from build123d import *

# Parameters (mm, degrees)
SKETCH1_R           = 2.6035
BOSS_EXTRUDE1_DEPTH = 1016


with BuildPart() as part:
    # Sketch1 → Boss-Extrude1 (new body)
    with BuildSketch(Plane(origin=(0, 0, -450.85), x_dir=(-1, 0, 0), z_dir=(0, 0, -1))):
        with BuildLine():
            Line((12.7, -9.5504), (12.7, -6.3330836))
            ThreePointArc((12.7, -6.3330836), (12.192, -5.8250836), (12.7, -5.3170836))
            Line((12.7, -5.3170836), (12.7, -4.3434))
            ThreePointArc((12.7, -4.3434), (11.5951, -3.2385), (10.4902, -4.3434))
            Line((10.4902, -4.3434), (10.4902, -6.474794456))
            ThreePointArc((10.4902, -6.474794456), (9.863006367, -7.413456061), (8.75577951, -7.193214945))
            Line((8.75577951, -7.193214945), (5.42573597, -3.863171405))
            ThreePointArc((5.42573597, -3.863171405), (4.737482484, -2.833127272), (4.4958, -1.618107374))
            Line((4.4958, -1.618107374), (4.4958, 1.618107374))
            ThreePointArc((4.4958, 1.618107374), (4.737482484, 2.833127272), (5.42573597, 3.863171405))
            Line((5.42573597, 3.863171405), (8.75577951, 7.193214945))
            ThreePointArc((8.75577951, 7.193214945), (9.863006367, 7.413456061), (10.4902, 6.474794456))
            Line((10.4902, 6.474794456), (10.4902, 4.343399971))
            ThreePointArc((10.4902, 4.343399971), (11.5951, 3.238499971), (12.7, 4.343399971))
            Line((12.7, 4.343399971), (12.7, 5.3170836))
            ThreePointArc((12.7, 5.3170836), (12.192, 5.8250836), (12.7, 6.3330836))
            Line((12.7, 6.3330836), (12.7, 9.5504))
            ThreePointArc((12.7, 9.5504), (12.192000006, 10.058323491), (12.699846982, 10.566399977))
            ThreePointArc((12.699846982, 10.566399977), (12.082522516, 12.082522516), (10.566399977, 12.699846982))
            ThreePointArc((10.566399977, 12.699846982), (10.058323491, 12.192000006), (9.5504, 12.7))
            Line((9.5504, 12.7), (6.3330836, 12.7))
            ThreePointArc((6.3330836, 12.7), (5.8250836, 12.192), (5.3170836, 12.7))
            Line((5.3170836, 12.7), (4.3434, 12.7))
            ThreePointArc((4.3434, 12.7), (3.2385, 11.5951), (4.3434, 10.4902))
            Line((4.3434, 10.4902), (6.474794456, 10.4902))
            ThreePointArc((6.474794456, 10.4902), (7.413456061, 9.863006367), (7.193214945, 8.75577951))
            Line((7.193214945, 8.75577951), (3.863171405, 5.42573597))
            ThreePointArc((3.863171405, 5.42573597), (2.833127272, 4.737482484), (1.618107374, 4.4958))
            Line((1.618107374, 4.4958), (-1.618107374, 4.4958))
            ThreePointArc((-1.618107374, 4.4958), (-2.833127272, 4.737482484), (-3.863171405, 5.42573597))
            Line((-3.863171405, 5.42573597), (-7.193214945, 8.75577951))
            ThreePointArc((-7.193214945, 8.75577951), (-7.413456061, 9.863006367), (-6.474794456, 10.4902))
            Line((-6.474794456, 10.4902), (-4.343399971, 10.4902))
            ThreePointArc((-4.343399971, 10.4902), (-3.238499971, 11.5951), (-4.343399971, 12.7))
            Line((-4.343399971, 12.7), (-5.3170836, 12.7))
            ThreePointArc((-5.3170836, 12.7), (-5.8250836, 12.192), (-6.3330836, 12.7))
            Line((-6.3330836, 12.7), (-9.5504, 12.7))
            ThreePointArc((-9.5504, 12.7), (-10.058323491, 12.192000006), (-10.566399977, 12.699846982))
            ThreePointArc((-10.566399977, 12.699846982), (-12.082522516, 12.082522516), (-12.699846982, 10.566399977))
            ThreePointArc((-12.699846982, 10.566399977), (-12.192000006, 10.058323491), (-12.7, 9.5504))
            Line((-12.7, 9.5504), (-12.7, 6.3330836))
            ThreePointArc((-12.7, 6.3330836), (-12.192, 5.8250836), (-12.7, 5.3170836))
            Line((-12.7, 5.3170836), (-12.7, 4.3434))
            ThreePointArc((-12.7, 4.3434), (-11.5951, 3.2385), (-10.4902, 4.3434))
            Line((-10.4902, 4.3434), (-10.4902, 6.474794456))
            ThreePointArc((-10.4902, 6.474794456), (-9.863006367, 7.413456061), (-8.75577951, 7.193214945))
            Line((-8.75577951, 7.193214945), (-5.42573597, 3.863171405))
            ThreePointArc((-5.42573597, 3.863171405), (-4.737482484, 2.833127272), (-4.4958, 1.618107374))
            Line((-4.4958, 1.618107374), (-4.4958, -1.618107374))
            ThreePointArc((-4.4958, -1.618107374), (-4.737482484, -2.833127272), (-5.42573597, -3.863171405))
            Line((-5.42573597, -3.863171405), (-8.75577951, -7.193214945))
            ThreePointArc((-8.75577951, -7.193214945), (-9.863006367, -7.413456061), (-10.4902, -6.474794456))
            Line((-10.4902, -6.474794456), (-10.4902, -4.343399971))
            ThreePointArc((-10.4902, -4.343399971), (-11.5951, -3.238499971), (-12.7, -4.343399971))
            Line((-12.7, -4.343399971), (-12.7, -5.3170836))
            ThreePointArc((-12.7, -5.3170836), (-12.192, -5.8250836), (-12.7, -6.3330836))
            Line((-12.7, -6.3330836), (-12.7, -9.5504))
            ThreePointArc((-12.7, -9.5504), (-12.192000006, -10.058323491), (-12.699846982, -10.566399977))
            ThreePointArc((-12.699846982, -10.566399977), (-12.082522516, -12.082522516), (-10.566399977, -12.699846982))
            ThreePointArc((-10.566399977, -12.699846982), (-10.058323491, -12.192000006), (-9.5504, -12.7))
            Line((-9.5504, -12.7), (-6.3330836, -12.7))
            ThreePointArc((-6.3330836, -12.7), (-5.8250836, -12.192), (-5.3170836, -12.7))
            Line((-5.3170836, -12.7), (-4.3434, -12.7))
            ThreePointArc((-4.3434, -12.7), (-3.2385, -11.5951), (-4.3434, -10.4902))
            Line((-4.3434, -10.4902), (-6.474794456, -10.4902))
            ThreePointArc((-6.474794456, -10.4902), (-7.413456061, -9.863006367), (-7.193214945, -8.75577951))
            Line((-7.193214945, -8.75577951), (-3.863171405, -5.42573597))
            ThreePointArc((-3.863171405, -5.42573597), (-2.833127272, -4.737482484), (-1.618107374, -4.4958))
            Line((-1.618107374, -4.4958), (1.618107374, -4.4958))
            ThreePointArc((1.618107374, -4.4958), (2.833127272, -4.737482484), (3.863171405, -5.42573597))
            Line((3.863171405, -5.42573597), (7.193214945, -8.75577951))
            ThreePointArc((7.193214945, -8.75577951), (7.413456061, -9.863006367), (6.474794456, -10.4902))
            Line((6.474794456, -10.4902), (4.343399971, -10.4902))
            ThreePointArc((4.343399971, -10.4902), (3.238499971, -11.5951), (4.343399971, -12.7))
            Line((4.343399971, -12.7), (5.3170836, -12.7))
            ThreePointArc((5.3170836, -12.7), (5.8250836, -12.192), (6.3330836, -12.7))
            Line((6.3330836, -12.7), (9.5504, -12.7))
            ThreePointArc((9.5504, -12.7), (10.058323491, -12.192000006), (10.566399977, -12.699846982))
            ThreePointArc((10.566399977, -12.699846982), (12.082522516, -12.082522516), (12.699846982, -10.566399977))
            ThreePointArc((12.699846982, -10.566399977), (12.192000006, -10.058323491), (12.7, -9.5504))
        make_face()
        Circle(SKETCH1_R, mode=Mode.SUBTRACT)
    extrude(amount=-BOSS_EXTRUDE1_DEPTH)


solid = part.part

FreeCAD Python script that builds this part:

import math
import FreeCAD as App
import Part
import Sketcher

V = App.Vector
Q = App.Units.Quantity

doc = App.newDocument("Part")
body = doc.addObject("PartDesign::Body", "Body")

sketch1 = doc.addObject("Sketcher::SketchObject", "Sketch")
body.addObject(sketch1)
sketch1.AttachmentSupport = (doc.XY_Plane, [""])
sketch1.MapMode = "FlatFace"
sketch1.AttachmentOffset = App.Placement(V(0, 0, -17.75 * 25.4), App.Rotation())
sketch1.addGeometry([
    Part.LineSegment(V(-12.7, -9.5504, 0), V(-12.7, -6.333084, 0)),
    Part.ArcOfCircle(Part.Circle(V(-12.7, -5.825084, 0), V(0, 0, 1), 0.508), math.radians(-90), math.radians(90)),
    Part.LineSegment(V(-12.7, -5.317084, 0), V(-12.7, -4.3434, 0)),
    Part.ArcOfCircle(Part.Circle(V(-11.5951, -4.3434, 0), V(0, 0, 1), 1.1049), math.radians(0), math.radians(180)),
    Part.LineSegment(V(-10.4902, -4.3434, 0), V(-10.4902, -6.474794, 0)),
    Part.ArcOfCircle(Part.Circle(V(-9.4742, -6.474794, 0), V(0, 0, 1), 1.016), math.radians(180), math.radians(315)),
    Part.LineSegment(V(-8.75578, -7.193215, 0), V(-5.425736, -3.863171, 0)),
    Part.ArcOfCircle(Part.Circle(V(-7.6708, -1.618107, 0), V(0, 0, 1), 3.175), math.radians(-45), math.radians(0)),
    Part.LineSegment(V(-4.4958, -1.618107, 0), V(-4.4958, 1.618107, 0)),
    Part.ArcOfCircle(Part.Circle(V(-7.6708, 1.618107, 0), V(0, 0, 1), 3.175), math.radians(0), math.radians(45)),
    Part.LineSegment(V(-5.425736, 3.863171, 0), V(-8.75578, 7.193215, 0)),
    Part.ArcOfCircle(Part.Circle(V(-9.4742, 6.474794, 0), V(0, 0, 1), 1.016), math.radians(45), math.radians(180)),
    Part.LineSegment(V(-10.4902, 6.474794, 0), V(-10.4902, 4.3434, 0)),
    Part.ArcOfCircle(Part.Circle(V(-11.5951, 4.3434, 0), V(0, 0, 1), 1.1049), math.radians(180), math.radians(360)),
    Part.LineSegment(V(-12.7, 4.3434, 0), V(-12.7, 5.317084, 0)),
    Part.ArcOfCircle(Part.Circle(V(-12.7, 5.825084, 0), V(0, 0, 1), 0.508), math.radians(-90), math.radians(90)),
    Part.LineSegment(V(-12.7, 6.333084, 0), V(-12.7, 9.5504, 0)),
    Part.ArcOfCircle(Part.Circle(V(-12.7, 10.0584, 0), V(0, 0, 1), 0.508), math.radians(-90), math.radians(89.982742)),
    Part.ArcOfCircle(Part.Circle(V(-10.5918, 10.5918, 0), V(0, 0, 1), 2.1082), math.radians(89.309672), math.radians(180.690328)),
    Part.ArcOfCircle(Part.Circle(V(-10.0584, 12.7, 0), V(0, 0, 1), 0.508), math.radians(-179.982742), math.radians(0)),
    Part.LineSegment(V(-9.5504, 12.7, 0), V(-6.333084, 12.7, 0)),
    Part.ArcOfCircle(Part.Circle(V(-5.825084, 12.7, 0), V(0, 0, 1), 0.508), math.radians(180), math.radians(360)),
    Part.LineSegment(V(-5.317084, 12.7, 0), V(-4.3434, 12.7, 0)),
    Part.ArcOfCircle(Part.Circle(V(-4.3434, 11.5951, 0), V(0, 0, 1), 1.1049), math.radians(-90), math.radians(90)),
    Part.LineSegment(V(-4.3434, 10.4902, 0), V(-6.474794, 10.4902, 0)),
    Part.ArcOfCircle(Part.Circle(V(-6.474794, 9.4742, 0), V(0, 0, 1), 1.016), math.radians(90), math.radians(225)),
    Part.LineSegment(V(-7.193215, 8.75578, 0), V(-3.863171, 5.425736, 0)),
    Part.ArcOfCircle(Part.Circle(V(-1.618107, 7.6708, 0), V(0, 0, 1), 3.175), math.radians(-135), math.radians(-90)),
    Part.LineSegment(V(-1.618107, 4.4958, 0), V(1.618107, 4.4958, 0)),
    Part.ArcOfCircle(Part.Circle(V(1.618107, 7.6708, 0), V(0, 0, 1), 3.175), math.radians(-90), math.radians(-45)),
    Part.LineSegment(V(3.863171, 5.425736, 0), V(7.193215, 8.75578, 0)),
    Part.ArcOfCircle(Part.Circle(V(6.474794, 9.4742, 0), V(0, 0, 1), 1.016), math.radians(-45), math.radians(90)),
    Part.LineSegment(V(6.474794, 10.4902, 0), V(4.3434, 10.4902, 0)),
    Part.ArcOfCircle(Part.Circle(V(4.3434, 11.5951, 0), V(0, 0, 1), 1.1049), math.radians(90), math.radians(270)),
    Part.LineSegment(V(4.3434, 12.7, 0), V(5.317084, 12.7, 0)),
    Part.ArcOfCircle(Part.Circle(V(5.825084, 12.7, 0), V(0, 0, 1), 0.508), math.radians(180), math.radians(360)),
    Part.LineSegment(V(6.333084, 12.7, 0), V(9.5504, 12.7, 0)),
    Part.ArcOfCircle(Part.Circle(V(10.0584, 12.7, 0), V(0, 0, 1), 0.508), math.radians(180), math.radians(359.982742)),
    Part.ArcOfCircle(Part.Circle(V(10.5918, 10.5918, 0), V(0, 0, 1), 2.1082), math.radians(-0.690328), math.radians(90.690328)),
    Part.ArcOfCircle(Part.Circle(V(12.7, 10.0584, 0), V(0, 0, 1), 0.508), math.radians(90.017258), math.radians(270)),
    Part.LineSegment(V(12.7, 9.5504, 0), V(12.7, 6.333084, 0)),
    Part.ArcOfCircle(Part.Circle(V(12.7, 5.825084, 0), V(0, 0, 1), 0.508), math.radians(90), math.radians(270)),
    Part.LineSegment(V(12.7, 5.317084, 0), V(12.7, 4.3434, 0)),
    Part.ArcOfCircle(Part.Circle(V(11.5951, 4.3434, 0), V(0, 0, 1), 1.1049), math.radians(180), math.radians(360)),
    Part.LineSegment(V(10.4902, 4.3434, 0), V(10.4902, 6.474794, 0)),
    Part.ArcOfCircle(Part.Circle(V(9.4742, 6.474794, 0), V(0, 0, 1), 1.016), math.radians(0), math.radians(135)),
    Part.LineSegment(V(8.75578, 7.193215, 0), V(5.425736, 3.863171, 0)),
    Part.ArcOfCircle(Part.Circle(V(7.6708, 1.618107, 0), V(0, 0, 1), 3.175), math.radians(135), math.radians(180)),
    Part.LineSegment(V(4.4958, 1.618107, 0), V(4.4958, -1.618107, 0)),
    Part.ArcOfCircle(Part.Circle(V(7.6708, -1.618107, 0), V(0, 0, 1), 3.175), math.radians(180), math.radians(225)),
    Part.LineSegment(V(5.425736, -3.863171, 0), V(8.75578, -7.193215, 0)),
    Part.ArcOfCircle(Part.Circle(V(9.4742, -6.474794, 0), V(0, 0, 1), 1.016), math.radians(-135), math.radians(0)),
    Part.LineSegment(V(10.4902, -6.474794, 0), V(10.4902, -4.3434, 0)),
    Part.ArcOfCircle(Part.Circle(V(11.5951, -4.3434, 0), V(0, 0, 1), 1.1049), math.radians(0), math.radians(180)),
    Part.LineSegment(V(12.7, -4.3434, 0), V(12.7, -5.317084, 0)),
    Part.ArcOfCircle(Part.Circle(V(12.7, -5.825084, 0), V(0, 0, 1), 0.508), math.radians(90), math.radians(270)),
    Part.LineSegment(V(12.7, -6.333084, 0), V(12.7, -9.5504, 0)),
    Part.ArcOfCircle(Part.Circle(V(12.7, -10.0584, 0), V(0, 0, 1), 0.508), math.radians(90), math.radians(269.982742)),
    Part.ArcOfCircle(Part.Circle(V(10.5918, -10.5918, 0), V(0, 0, 1), 2.1082), math.radians(-90.690328), math.radians(0.690328)),
    Part.ArcOfCircle(Part.Circle(V(10.0584, -12.7, 0), V(0, 0, 1), 0.508), math.radians(0.017258), math.radians(180)),
    Part.LineSegment(V(9.5504, -12.7, 0), V(6.333084, -12.7, 0)),
    Part.ArcOfCircle(Part.Circle(V(5.825084, -12.7, 0), V(0, 0, 1), 0.508), math.radians(0), math.radians(180)),
    Part.LineSegment(V(5.317084, -12.7, 0), V(4.3434, -12.7, 0)),
    Part.ArcOfCircle(Part.Circle(V(4.3434, -11.5951, 0), V(0, 0, 1), 1.1049), math.radians(90), math.radians(270)),
    Part.LineSegment(V(4.3434, -10.4902, 0), V(6.474794, -10.4902, 0)),
    Part.ArcOfCircle(Part.Circle(V(6.474794, -9.4742, 0), V(0, 0, 1), 1.016), math.radians(-90), math.radians(45)),
    Part.LineSegment(V(7.193215, -8.75578, 0), V(3.863171, -5.425736, 0)),
    Part.ArcOfCircle(Part.Circle(V(1.618107, -7.6708, 0), V(0, 0, 1), 3.175), math.radians(45), math.radians(90)),
    Part.LineSegment(V(1.618107, -4.4958, 0), V(-1.618107, -4.4958, 0)),
    Part.ArcOfCircle(Part.Circle(V(-1.618107, -7.6708, 0), V(0, 0, 1), 3.175), math.radians(90), math.radians(135)),
    Part.LineSegment(V(-3.863171, -5.425736, 0), V(-7.193215, -8.75578, 0)),
    Part.ArcOfCircle(Part.Circle(V(-6.474794, -9.4742, 0), V(0, 0, 1), 1.016), math.radians(135), math.radians(270)),
    Part.LineSegment(V(-6.474794, -10.4902, 0), V(-4.3434, -10.4902, 0)),
    Part.ArcOfCircle(Part.Circle(V(-4.3434, -11.5951, 0), V(0, 0, 1), 1.1049), math.radians(-90), math.radians(90)),
    Part.LineSegment(V(-4.3434, -12.7, 0), V(-5.317084, -12.7, 0)),
    Part.ArcOfCircle(Part.Circle(V(-5.825084, -12.7, 0), V(0, 0, 1), 0.508), math.radians(0), math.radians(180)),
    Part.LineSegment(V(-6.333084, -12.7, 0), V(-9.5504, -12.7, 0)),
    Part.ArcOfCircle(Part.Circle(V(-10.0584, -12.7, 0), V(0, 0, 1), 0.508), math.radians(0), math.radians(179.982742)),
    Part.ArcOfCircle(Part.Circle(V(-10.5918, -10.5918, 0), V(0, 0, 1), 2.1082), math.radians(179.309672), math.radians(270.690328)),
    Part.ArcOfCircle(Part.Circle(V(-12.7, -10.0584, 0), V(0, 0, 1), 0.508), math.radians(-89.982742), math.radians(90)),
    Part.Circle(V(0, 0, 0), V(0, 0, 1), 2.6035),
], False)
sketch1.addConstraint([
    Sketcher.Constraint("Coincident", 0, 2, 1, 1),
    Sketcher.Constraint("Coincident", 1, 2, 2, 1),
    Sketcher.Constraint("Tangent", 2, 2, 3, 2),
    Sketcher.Constraint("Tangent", 3, 1, 4, 1),
    Sketcher.Constraint("Tangent", 4, 2, 5, 1),
    Sketcher.Constraint("Tangent", 5, 2, 6, 1),
    Sketcher.Constraint("Tangent", 6, 2, 7, 1),
    Sketcher.Constraint("Tangent", 7, 2, 8, 1),
    Sketcher.Constraint("Tangent", 8, 2, 9, 1),
    Sketcher.Constraint("Tangent", 9, 2, 10, 1),
    Sketcher.Constraint("Tangent", 10, 2, 11, 1),
    Sketcher.Constraint("Tangent", 11, 2, 12, 1),
    Sketcher.Constraint("Tangent", 12, 2, 13, 2),
    Sketcher.Constraint("Tangent", 13, 1, 14, 1),
    Sketcher.Constraint("Coincident", 14, 2, 15, 1),
    Sketcher.Constraint("Coincident", 15, 2, 16, 1),
    Sketcher.Constraint("Coincident", 16, 2, 17, 1),
    Sketcher.Constraint("Coincident", 17, 2, 18, 2),
    Sketcher.Constraint("Coincident", 18, 1, 19, 1),
    Sketcher.Constraint("Coincident", 19, 2, 20, 1),
    Sketcher.Constraint("Coincident", 20, 2, 21, 1),
    Sketcher.Constraint("Coincident", 21, 2, 22, 1),
    Sketcher.Constraint("Tangent", 22, 2, 23, 2),
    Sketcher.Constraint("Tangent", 23, 1, 24, 1),
    Sketcher.Constraint("Tangent", 24, 2, 25, 1),
    Sketcher.Constraint("Tangent", 25, 2, 26, 1),
    Sketcher.Constraint("Tangent", 26, 2, 27, 1),
    Sketcher.Constraint("Tangent", 27, 2, 28, 1),
    Sketcher.Constraint("Tangent", 28, 2, 29, 1),
    Sketcher.Constraint("Tangent", 29, 2, 30, 1),
    Sketcher.Constraint("Tangent", 30, 2, 31, 1),
    Sketcher.Constraint("Tangent", 31, 2, 32, 1),
    Sketcher.Constraint("Tangent", 32, 2, 33, 2),
    Sketcher.Constraint("Tangent", 33, 1, 34, 1),
    Sketcher.Constraint("Coincident", 34, 2, 35, 1),
    Sketcher.Constraint("Coincident", 35, 2, 36, 1),
    Sketcher.Constraint("Coincident", 36, 2, 37, 1),
    Sketcher.Constraint("Coincident", 37, 2, 38, 2),
    Sketcher.Constraint("Coincident", 38, 1, 39, 1),
    Sketcher.Constraint("Coincident", 39, 2, 40, 1),
    Sketcher.Constraint("Coincident", 40, 2, 41, 1),
    Sketcher.Constraint("Coincident", 41, 2, 42, 1),
    Sketcher.Constraint("Tangent", 42, 2, 43, 2),
    Sketcher.Constraint("Tangent", 43, 1, 44, 1),
    Sketcher.Constraint("Tangent", 44, 2, 45, 1),
    Sketcher.Constraint("Tangent", 45, 2, 46, 1),
    Sketcher.Constraint("Tangent", 46, 2, 47, 1),
    Sketcher.Constraint("Tangent", 47, 2, 48, 1),
    Sketcher.Constraint("Tangent", 48, 2, 49, 1),
    Sketcher.Constraint("Tangent", 49, 2, 50, 1),
    Sketcher.Constraint("Tangent", 50, 2, 51, 1),
    Sketcher.Constraint("Tangent", 51, 2, 52, 1),
    Sketcher.Constraint("Tangent", 52, 2, 53, 2),
    Sketcher.Constraint("Tangent", 53, 1, 54, 1),
    Sketcher.Constraint("Coincident", 54, 2, 55, 1),
    Sketcher.Constraint("Coincident", 55, 2, 56, 1),
    Sketcher.Constraint("Coincident", 56, 2, 57, 1),
    Sketcher.Constraint("Coincident", 57, 2, 58, 2),
    Sketcher.Constraint("Coincident", 58, 1, 59, 1),
    Sketcher.Constraint("Coincident", 59, 2, 60, 1),
    Sketcher.Constraint("Coincident", 60, 2, 61, 1),
    Sketcher.Constraint("Coincident", 61, 2, 62, 1),
    Sketcher.Constraint("Tangent", 62, 2, 63, 2),
    Sketcher.Constraint("Tangent", 63, 1, 64, 1),
    Sketcher.Constraint("Tangent", 64, 2, 65, 1),
    Sketcher.Constraint("Tangent", 65, 2, 66, 1),
    Sketcher.Constraint("Tangent", 66, 2, 67, 1),
    Sketcher.Constraint("Tangent", 67, 2, 68, 1),
    Sketcher.Constraint("Tangent", 68, 2, 69, 1),
    Sketcher.Constraint("Tangent", 69, 2, 70, 1),
    Sketcher.Constraint("Tangent", 70, 2, 71, 1),
    Sketcher.Constraint("Tangent", 71, 2, 72, 1),
    Sketcher.Constraint("Tangent", 72, 2, 73, 2),
    Sketcher.Constraint("Tangent", 73, 1, 74, 1),
    Sketcher.Constraint("Coincident", 74, 2, 75, 1),
    Sketcher.Constraint("Coincident", 75, 2, 76, 1),
    Sketcher.Constraint("Coincident", 76, 2, 77, 1),
    Sketcher.Constraint("Coincident", 77, 2, 78, 2),
    Sketcher.Constraint("Coincident", 78, 1, 79, 1),
    Sketcher.Constraint("Coincident", 79, 2, 0, 1),
    Sketcher.Constraint("Vertical", 0),
    Sketcher.Constraint("Vertical", 2),
    Sketcher.Constraint("Vertical", 4),
    Sketcher.Constraint("Vertical", 8),
    Sketcher.Constraint("Vertical", 12),
    Sketcher.Constraint("Vertical", 14),
    Sketcher.Constraint("Vertical", 16),
    Sketcher.Constraint("Horizontal", 20),
    Sketcher.Constraint("Horizontal", 22),
    Sketcher.Constraint("Horizontal", 24),
    Sketcher.Constraint("Horizontal", 28),
    Sketcher.Constraint("Horizontal", 32),
    Sketcher.Constraint("Horizontal", 34),
    Sketcher.Constraint("Horizontal", 36),
    Sketcher.Constraint("Vertical", 40),
    Sketcher.Constraint("Vertical", 42),
    Sketcher.Constraint("Vertical", 44),
    Sketcher.Constraint("Vertical", 48),
    Sketcher.Constraint("Vertical", 52),
    Sketcher.Constraint("Vertical", 54),
    Sketcher.Constraint("Vertical", 56),
    Sketcher.Constraint("Horizontal", 60),
    Sketcher.Constraint("Horizontal", 62),
    Sketcher.Constraint("Horizontal", 64),
    Sketcher.Constraint("Horizontal", 68),
    Sketcher.Constraint("Horizontal", 72),
    Sketcher.Constraint("Horizontal", 74),
    Sketcher.Constraint("Horizontal", 76),
    Sketcher.Constraint("Coincident", 80, 3, -1, 1),
    Sketcher.Constraint("Equal", 7, 9),
    Sketcher.Constraint("Equal", 5, 11),
    Sketcher.Constraint("Equal", 3, 13),
    Sketcher.Constraint("Equal", 1, 15),
    Sketcher.Constraint("Equal", 15, 17),
    Sketcher.Constraint("Equal", 17, 19),
    Sketcher.Constraint("Equal", 19, 21),
    Sketcher.Constraint("Equal", 13, 23),
    Sketcher.Constraint("Equal", 11, 25),
    Sketcher.Constraint("Equal", 9, 27),
    Sketcher.Constraint("Equal", 27, 29),
    Sketcher.Constraint("Equal", 25, 31),
    Sketcher.Constraint("Equal", 23, 33),
    Sketcher.Constraint("Equal", 21, 35),
    Sketcher.Constraint("Equal", 35, 37),
    Sketcher.Constraint("Equal", 18, 38),
    Sketcher.Constraint("Equal", 37, 39),
    Sketcher.Constraint("Equal", 39, 41),
    Sketcher.Constraint("Equal", 33, 43),
    Sketcher.Constraint("Equal", 31, 45),
    Sketcher.Constraint("Equal", 29, 47),
    Sketcher.Constraint("Equal", 47, 49),
    Sketcher.Constraint("Equal", 45, 51),
    Sketcher.Constraint("Equal", 43, 53),
    Sketcher.Constraint("Equal", 41, 55),
    Sketcher.Constraint("Equal", 55, 57),
    Sketcher.Constraint("Equal", 38, 58),
    Sketcher.Constraint("Equal", 57, 59),
    Sketcher.Constraint("Equal", 59, 61),
    Sketcher.Constraint("Equal", 53, 63),
    Sketcher.Constraint("Equal", 51, 65),
    Sketcher.Constraint("Equal", 49, 67),
    Sketcher.Constraint("Equal", 67, 69),
    Sketcher.Constraint("Equal", 65, 71),
    Sketcher.Constraint("Equal", 63, 73),
    Sketcher.Constraint("Equal", 61, 75),
    Sketcher.Constraint("Equal", 75, 77),
    Sketcher.Constraint("Equal", 58, 78),
    Sketcher.Constraint("Equal", 77, 79),
    Sketcher.Constraint("Symmetric", 1, 3, 41, 3, -1, 1),
    Sketcher.Constraint("Symmetric", 3, 3, 43, 3, -1, 1),
    Sketcher.Constraint("Symmetric", 7, 3, 47, 3, -1, 1),
    Sketcher.Constraint("Symmetric", 11, 3, 51, 3, -1, 1),
    Sketcher.Constraint("Symmetric", 15, 3, 55, 3, -1, 1),
    Sketcher.Constraint("Symmetric", 17, 3, 57, 3, -1, 1),
    Sketcher.Constraint("Symmetric", 18, 3, 58, 3, -1, 1),
    Sketcher.Constraint("Symmetric", 19, 3, 59, 3, -1, 1),
    Sketcher.Constraint("Symmetric", 21, 3, 61, 3, -1, 1),
    Sketcher.Constraint("Symmetric", 23, 3, 63, 3, -1, 1),
    Sketcher.Constraint("Symmetric", 27, 3, 67, 3, -1, 1),
    Sketcher.Constraint("Symmetric", 31, 3, 71, 3, -1, 1),
    Sketcher.Constraint("Symmetric", 35, 3, 75, 3, -1, 1),
    Sketcher.Constraint("Symmetric", 37, 3, 77, 3, -1, 1),
    Sketcher.Constraint("Symmetric", 38, 3, 78, 3, -1, 1),
    Sketcher.Constraint("Symmetric", 39, 3, 79, 3, -1, 1),
    Sketcher.Constraint("Symmetric", 25, 3, 31, 3, -2),
    Sketcher.Constraint("Symmetric", 21, 3, 35, 3, -2),
    Sketcher.Constraint("Symmetric", 19, 3, 37, 3, -2),
    Sketcher.Constraint("Symmetric", 18, 3, 38, 3, -2),
    Sketcher.Constraint("Symmetric", 17, 3, 39, 3, -2),
    Sketcher.Constraint("Symmetric", 15, 3, 41, 3, -2),
    Sketcher.Constraint("Symmetric", 13, 3, 43, 3, -2),
    Sketcher.Constraint("Symmetric", 10, 2, 45, 2, -2),
    Sketcher.Constraint("Symmetric", 6, 2, 49, 2, -2),
    Sketcher.Constraint("Symmetric", 66, 2, 69, 2, -2),
    Sketcher.Constraint("Perpendicular", 6, 10),
    Sketcher.Constraint("Parallel", 10, 26),
    Sketcher.Constraint("Perpendicular", 26, 30),
    Sketcher.Constraint("Horizontal", 19, 3, 21, 3),
    Sketcher.Constraint("Horizontal", 3, 3, 53, 3),
    Sketcher.Constraint("Horizontal", 37, 3, 19, 2),
    Sketcher.Constraint("Horizontal", 20, 2, 21, 2),
    Sketcher.Constraint("Horizontal", 34, 2, 35, 2),
    Sketcher.Constraint("Horizontal", 77, 3, 59, 2),
    Sketcher.Constraint("Horizontal", 74, 2, 75, 2),
    Sketcher.Constraint("Vertical", 15, 3, 17, 3),
    Sketcher.Constraint("Vertical", 33, 3, 63, 3),
    Sketcher.Constraint("Vertical", 23, 3, 73, 3),
    Sketcher.Constraint("Vertical", 79, 3, 0, 2),
    Sketcher.Constraint("Vertical", 0, 2, 1, 2),
    Sketcher.Constraint("Vertical", 14, 2, 15, 2),
    Sketcher.Constraint("Vertical", 57, 3, 39, 2),
    Sketcher.Constraint("Vertical", 54, 2, 55, 2),
    Sketcher.Constraint("Equal", 76, 0),
    Sketcher.Constraint("Equal", 74, 2),
    Sketcher.Constraint("Equal", 72, 4),
    Sketcher.Constraint("Equal", 68, 8),
    Sketcher.Constraint("Equal", 10, 26),
    Sketcher.Constraint("Radius", 1, Q("0.02 in")),
    Sketcher.Constraint("Radius", 5, Q("0.04 in")),
    Sketcher.Constraint("Diameter", 80, Q("0.205 in")),
    Sketcher.Constraint("Radius", 7, Q("0.125 in")),
    Sketcher.Constraint("Radius", 18, Q("0.083 in")),
    Sketcher.Constraint("DistanceX", 1, 3, -1, 1, Q("0.5 in")),
    Sketcher.Constraint("DistanceY", -1, 1, 19, 3, Q("0.5 in")),
    Sketcher.Constraint("Radius", 3, Q("0.0435 in")),
    Sketcher.Constraint("DistanceY", 3, 3, -1, 1, Q("0.171 in")),
    Sketcher.Constraint("DistanceX", 7, 3, -1, 1, Q("0.302 in")),
    Sketcher.Constraint("DistanceY", -1, 1, 17, 3, Q("0.396 in")),
    Sketcher.Constraint("DistanceX", 18, 3, -1, 1, Q("0.417 in")),
    Sketcher.Constraint("DistanceY", -1, 1, 18, 3, Q("0.417 in")),
    Sketcher.Constraint("DistanceX", 20, 1, 20, 2, 3.217316),
    Sketcher.Constraint("DistanceX", 24, 2, 24, 1, 2.131394),
])
pad1 = doc.addObject("PartDesign::Pad", "Pad")
body.addObject(pad1)
pad1.Profile = sketch1
pad1.Length = Q("40 in")

doc.recompute()
